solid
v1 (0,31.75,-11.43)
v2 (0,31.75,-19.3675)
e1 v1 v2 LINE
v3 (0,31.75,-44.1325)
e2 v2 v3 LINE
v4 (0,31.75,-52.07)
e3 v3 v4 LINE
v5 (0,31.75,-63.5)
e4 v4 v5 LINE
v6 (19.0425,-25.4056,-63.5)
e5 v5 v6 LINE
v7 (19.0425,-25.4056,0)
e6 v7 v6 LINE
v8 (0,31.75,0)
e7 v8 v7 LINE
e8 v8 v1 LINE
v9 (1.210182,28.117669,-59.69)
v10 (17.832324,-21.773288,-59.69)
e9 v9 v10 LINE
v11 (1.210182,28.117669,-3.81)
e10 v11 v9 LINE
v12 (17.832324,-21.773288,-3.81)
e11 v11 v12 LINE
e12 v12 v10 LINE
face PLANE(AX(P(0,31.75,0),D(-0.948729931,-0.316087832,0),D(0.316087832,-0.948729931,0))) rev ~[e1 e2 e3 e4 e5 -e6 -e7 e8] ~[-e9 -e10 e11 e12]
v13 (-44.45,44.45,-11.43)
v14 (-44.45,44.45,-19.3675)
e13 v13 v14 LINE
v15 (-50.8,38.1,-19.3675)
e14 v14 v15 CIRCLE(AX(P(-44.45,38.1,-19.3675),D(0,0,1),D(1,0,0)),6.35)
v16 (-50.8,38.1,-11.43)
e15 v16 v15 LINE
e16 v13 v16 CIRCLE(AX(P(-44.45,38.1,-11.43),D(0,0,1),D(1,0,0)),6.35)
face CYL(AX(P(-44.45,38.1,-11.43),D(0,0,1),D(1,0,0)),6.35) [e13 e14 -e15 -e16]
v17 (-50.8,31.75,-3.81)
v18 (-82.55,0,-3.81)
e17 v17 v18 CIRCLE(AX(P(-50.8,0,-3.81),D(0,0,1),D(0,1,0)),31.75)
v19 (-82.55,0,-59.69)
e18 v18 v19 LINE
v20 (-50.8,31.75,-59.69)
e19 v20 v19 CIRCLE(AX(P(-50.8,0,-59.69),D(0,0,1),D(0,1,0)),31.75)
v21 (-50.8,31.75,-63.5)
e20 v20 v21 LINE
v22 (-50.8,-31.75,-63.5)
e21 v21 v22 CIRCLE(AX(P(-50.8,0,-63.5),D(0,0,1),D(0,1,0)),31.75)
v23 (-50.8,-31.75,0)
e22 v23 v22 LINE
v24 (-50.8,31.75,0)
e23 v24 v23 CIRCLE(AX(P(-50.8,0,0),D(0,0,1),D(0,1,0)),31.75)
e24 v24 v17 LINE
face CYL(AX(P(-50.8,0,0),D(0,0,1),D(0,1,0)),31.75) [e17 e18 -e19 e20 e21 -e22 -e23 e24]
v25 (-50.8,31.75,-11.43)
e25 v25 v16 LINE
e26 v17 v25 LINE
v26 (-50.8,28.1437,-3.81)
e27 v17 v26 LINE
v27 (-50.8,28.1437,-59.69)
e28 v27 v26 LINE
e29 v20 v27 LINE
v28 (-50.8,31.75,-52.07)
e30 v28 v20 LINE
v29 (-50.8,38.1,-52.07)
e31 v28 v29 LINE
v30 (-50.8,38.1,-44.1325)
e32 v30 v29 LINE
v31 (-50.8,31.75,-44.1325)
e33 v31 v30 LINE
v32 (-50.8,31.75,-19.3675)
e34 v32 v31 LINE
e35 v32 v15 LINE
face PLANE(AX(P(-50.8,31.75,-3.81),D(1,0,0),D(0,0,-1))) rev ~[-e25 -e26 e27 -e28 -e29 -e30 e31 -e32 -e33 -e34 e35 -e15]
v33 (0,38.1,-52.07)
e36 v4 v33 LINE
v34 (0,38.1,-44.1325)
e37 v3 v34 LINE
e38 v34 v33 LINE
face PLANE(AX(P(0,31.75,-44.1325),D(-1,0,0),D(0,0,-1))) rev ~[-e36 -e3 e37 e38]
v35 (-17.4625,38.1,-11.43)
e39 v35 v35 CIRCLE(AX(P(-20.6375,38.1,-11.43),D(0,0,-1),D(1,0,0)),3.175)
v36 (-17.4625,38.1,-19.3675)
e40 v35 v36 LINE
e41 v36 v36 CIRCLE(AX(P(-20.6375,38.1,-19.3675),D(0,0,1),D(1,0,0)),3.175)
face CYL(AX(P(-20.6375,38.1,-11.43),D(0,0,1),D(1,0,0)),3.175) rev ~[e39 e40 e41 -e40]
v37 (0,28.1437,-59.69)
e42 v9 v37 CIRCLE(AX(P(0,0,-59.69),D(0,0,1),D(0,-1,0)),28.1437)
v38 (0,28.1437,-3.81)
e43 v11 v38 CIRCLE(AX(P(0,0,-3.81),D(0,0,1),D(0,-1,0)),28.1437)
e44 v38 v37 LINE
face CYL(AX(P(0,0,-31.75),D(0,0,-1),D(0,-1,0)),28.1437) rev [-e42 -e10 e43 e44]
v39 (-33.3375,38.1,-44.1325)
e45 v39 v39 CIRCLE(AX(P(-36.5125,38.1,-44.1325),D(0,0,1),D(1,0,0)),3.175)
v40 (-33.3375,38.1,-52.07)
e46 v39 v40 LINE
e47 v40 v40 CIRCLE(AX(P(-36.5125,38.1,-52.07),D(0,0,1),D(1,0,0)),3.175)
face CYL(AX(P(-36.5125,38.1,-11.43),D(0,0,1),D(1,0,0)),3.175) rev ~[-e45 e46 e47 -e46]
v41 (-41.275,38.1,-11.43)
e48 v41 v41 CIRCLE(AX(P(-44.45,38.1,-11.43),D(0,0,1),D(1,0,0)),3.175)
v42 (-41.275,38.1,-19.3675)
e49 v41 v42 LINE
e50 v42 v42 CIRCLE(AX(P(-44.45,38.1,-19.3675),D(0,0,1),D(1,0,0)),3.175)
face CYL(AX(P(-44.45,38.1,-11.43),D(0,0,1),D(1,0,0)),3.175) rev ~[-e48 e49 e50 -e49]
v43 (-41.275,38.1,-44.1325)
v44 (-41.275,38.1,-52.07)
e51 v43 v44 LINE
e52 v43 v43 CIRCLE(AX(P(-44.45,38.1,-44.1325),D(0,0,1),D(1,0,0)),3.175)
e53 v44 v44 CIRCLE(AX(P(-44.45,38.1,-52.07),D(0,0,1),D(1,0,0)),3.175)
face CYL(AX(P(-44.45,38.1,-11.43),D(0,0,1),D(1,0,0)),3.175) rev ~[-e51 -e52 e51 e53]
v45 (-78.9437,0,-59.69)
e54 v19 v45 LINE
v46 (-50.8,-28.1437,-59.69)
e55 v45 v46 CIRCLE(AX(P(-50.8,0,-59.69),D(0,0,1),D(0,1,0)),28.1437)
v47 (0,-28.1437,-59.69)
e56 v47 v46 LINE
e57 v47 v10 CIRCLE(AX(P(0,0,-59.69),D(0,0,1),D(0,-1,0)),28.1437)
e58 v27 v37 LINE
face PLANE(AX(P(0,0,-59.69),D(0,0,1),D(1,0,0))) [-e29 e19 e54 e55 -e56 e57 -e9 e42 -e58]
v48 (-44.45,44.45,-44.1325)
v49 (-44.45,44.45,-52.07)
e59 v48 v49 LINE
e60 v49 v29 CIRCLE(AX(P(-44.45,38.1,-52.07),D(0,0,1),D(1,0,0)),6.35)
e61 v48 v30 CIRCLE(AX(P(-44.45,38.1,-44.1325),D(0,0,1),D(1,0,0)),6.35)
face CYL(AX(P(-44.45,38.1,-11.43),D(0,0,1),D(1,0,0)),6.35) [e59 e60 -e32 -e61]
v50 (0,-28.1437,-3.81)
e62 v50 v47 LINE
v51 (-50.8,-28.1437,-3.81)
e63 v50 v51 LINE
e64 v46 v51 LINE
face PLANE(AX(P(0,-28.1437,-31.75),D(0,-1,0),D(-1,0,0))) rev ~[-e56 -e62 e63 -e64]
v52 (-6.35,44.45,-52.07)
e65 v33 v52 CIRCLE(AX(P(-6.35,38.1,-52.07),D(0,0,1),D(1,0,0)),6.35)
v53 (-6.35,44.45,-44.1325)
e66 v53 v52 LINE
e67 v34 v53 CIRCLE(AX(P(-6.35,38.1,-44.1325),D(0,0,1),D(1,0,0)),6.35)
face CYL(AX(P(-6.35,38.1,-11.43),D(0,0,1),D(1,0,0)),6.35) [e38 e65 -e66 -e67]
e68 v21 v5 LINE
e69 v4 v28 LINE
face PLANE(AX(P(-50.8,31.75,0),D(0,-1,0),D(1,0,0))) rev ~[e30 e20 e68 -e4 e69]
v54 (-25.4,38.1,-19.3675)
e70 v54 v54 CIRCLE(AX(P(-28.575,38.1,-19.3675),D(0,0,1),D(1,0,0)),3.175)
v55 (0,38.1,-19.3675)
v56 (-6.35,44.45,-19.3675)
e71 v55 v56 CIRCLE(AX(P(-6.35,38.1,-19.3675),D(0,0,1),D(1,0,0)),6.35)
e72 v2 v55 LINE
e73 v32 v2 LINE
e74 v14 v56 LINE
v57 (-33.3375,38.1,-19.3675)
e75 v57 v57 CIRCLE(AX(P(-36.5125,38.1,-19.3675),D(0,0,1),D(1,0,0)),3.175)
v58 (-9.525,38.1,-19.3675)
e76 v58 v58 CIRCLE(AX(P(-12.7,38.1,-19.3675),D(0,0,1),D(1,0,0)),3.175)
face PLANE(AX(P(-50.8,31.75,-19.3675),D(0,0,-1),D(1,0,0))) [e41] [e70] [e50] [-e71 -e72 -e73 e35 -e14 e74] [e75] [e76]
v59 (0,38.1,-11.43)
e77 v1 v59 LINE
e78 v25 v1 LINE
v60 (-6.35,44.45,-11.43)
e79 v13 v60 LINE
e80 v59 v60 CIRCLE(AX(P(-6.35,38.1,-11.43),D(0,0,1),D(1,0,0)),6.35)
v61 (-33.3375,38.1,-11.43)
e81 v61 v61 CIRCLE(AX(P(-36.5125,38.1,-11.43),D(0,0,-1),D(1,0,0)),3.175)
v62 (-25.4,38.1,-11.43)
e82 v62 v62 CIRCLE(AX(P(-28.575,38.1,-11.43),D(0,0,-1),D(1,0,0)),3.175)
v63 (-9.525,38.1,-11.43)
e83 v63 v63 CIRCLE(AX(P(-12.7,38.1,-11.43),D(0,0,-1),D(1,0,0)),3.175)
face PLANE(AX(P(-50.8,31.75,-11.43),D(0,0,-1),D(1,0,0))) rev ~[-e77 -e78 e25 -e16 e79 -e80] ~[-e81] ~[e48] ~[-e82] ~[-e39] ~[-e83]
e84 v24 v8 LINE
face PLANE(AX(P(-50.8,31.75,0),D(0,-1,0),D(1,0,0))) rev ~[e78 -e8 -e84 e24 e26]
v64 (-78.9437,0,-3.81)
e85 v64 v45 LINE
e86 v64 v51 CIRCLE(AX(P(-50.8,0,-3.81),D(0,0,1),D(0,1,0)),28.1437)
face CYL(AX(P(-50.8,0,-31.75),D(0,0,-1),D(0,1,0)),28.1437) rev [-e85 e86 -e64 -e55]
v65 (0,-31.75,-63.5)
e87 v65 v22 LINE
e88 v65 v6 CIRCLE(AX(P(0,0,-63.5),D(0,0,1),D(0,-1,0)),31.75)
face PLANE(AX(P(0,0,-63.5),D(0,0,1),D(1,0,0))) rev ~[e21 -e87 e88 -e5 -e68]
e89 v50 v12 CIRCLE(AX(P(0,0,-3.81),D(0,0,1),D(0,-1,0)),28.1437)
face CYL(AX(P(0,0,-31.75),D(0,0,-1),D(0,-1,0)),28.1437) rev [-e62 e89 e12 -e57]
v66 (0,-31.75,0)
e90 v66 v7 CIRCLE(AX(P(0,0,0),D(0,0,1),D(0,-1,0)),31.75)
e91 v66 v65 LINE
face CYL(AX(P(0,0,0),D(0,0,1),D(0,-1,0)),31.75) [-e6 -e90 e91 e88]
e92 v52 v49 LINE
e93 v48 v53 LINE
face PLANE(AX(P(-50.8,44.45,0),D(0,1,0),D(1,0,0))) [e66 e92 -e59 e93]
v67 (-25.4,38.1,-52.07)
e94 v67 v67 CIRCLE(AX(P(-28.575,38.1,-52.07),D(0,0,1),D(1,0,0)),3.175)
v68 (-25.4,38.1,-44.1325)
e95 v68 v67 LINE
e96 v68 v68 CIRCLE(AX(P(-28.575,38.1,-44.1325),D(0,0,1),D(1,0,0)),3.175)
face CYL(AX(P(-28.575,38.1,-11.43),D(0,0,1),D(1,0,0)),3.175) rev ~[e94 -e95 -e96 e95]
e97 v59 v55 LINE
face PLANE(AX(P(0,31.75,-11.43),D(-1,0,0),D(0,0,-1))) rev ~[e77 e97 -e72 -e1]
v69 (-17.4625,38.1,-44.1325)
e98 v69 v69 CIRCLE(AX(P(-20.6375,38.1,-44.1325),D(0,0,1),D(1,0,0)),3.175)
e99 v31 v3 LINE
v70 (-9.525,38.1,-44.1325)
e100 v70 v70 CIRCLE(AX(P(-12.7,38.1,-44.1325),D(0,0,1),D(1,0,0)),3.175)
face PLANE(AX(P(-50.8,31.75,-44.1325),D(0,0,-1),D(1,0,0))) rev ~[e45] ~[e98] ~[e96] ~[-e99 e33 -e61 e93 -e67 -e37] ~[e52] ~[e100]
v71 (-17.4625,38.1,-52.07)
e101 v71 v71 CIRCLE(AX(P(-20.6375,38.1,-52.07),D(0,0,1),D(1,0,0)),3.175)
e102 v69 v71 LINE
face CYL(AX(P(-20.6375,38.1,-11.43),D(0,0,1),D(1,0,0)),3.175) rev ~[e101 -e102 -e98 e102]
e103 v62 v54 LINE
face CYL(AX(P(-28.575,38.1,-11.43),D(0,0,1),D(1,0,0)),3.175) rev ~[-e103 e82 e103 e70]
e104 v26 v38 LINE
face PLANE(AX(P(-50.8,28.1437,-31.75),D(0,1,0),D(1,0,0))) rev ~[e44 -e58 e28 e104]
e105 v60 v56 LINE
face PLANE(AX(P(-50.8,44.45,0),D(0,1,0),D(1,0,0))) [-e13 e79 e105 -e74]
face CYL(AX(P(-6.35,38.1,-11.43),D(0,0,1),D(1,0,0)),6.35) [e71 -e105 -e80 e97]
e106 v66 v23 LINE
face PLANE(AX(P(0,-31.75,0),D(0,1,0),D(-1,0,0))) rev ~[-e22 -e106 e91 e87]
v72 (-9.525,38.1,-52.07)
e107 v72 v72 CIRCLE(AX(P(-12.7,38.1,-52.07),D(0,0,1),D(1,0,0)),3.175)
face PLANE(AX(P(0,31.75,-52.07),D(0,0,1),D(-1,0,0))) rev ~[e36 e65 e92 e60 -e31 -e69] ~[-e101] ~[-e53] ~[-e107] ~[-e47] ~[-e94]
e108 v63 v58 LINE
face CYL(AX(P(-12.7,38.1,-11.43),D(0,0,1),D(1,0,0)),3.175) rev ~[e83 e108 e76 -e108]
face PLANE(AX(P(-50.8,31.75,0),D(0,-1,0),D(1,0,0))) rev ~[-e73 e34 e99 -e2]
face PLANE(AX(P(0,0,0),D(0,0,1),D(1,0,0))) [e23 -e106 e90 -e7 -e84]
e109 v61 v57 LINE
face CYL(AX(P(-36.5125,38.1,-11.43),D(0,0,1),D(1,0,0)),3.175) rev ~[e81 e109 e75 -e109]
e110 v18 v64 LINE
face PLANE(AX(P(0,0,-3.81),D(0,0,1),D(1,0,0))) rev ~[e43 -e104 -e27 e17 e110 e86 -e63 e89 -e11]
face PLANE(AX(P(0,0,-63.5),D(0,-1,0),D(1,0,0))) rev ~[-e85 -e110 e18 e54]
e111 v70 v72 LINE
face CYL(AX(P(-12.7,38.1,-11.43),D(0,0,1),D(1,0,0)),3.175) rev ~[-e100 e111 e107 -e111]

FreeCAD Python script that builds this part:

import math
import FreeCAD as App
import Part
import Sketcher

V = App.Vector
Q = App.Units.Quantity

doc = App.newDocument("Part")
body = doc.addObject("PartDesign::Body", "Body")

# Sketch on XY plane
sketch1 = body.newObject("Sketcher::SketchObject", "Sketch")
sketch1.AttachmentSupport = (doc.getObject("XY_Plane"), [""])
sketch1.MapMode = "FlatFace"
sketch1.addGeometry([
    Part.LineSegment(V(0, 32, 0), V(-51, 32, 0)),
    Part.ArcOfCircle(Part.Circle(V(-51, 0, 0), V(0, 0, 1), 32), math.radians(90), math.radians(270)),
    Part.LineSegment(V(-51, -32, 0), V(0, -32, 0)),
    Part.ArcOfCircle(Part.Circle(V(0, 0, 0), V(0, 0, 1), 32), math.radians(-90), math.radians(90)),
], False)
sketch1.addConstraint([
    Sketcher.Constraint("Tangent", 0, 2, 1, 1),
    Sketcher.Constraint("Tangent", 1, 2, 2, 1),
    Sketcher.Constraint("Tangent", 2, 2, 3, 1),
    Sketcher.Constraint("Tangent", 3, 2, 0, 1),
    Sketcher.Constraint("Horizontal", 0),
    Sketcher.Constraint("Horizontal", 2),
    Sketcher.Constraint("Coincident", 3, 3, -1, 1),
    Sketcher.Constraint("DistanceX", 0, 2, 0, 1, Q("2 in")),
    Sketcher.Constraint("Radius", 1, Q("1.25 in")),
])
pad1 = body.newObject("PartDesign::Pad", "Pad")
pad1.Profile = sketch1
pad1.Length = Q("2.5 in")
pad1.Reversed = True

# Sketch on XY plane
sketch2 = body.newObject("Sketcher::SketchObject", "Sketch001")
sketch2.AttachmentSupport = (doc.getObject("XY_Plane"), [""])
sketch2.MapMode = "FlatFace"
sketch2.AttachmentOffset = App.Placement(V(0, 0, -1.25 * 25.4), App.Rotation())
sketch2.addGeometry([
    Part.LineSegment(V(0, 28, 0), V(-51, 28, 0)),
    Part.ArcOfCircle(Part.Circle(V(-51, 0, 0), V(0, 0, 1), 28), math.radians(90), math.radians(270)),
    Part.LineSegment(V(-51, -28, 0), V(0, -28, 0)),
    Part.ArcOfCircle(Part.Circle(V(0, 0, 0), V(0, 0, 1), 28), math.radians(-90), math.radians(90)),
], False)
sketch2.addConstraint([
    Sketcher.Constraint("Tangent", 0, 2, 1, 1),
    Sketcher.Constraint("Tangent", 1, 2, 2, 1),
    Sketcher.Constraint("Tangent", 2, 2, 3, 1),
    Sketcher.Constraint("Tangent", 3, 2, 0, 1),
    Sketcher.Constraint("Horizontal", 0),
    Sketcher.Constraint("Horizontal", 2),
    Sketcher.Constraint("Coincident", 3, 3, -1, 1),
    Sketcher.Constraint("DistanceX", 0, 2, 0, 1, Q("2 in")),
    Sketcher.Constraint("Radius", 1, 28.1437),
])
pocket1 = body.newObject("PartDesign::Pocket", "Pocket")
pocket1.Profile = sketch2
pocket1.Length = Q("2.2 in")
pocket1.Midplane = True

# Sketch on XY plane
sketch3 = body.newObject("Sketcher::SketchObject", "Sketch002")
sketch3.AttachmentSupport = (doc.getObject("XY_Plane"), [""])
sketch3.MapMode = "FlatFace"
sketch3.addGeometry([
    Part.ArcOfCircle(Part.Circle(V(0, 0, 0), V(0, 0, 1), 32), math.radians(-53), math.radians(90)),
    Part.LineSegment(V(0, 32, 0), V(19, -25, 0)),
], False)
sketch3.addConstraint([
    Sketcher.Constraint("Coincident", 0, 1, 1, 2),
    Sketcher.Constraint("Coincident", 1, 1, 0, 2),
    Sketcher.Constraint("Coincident", 0, 3, -1, 1),
    Sketcher.Constraint("PointOnObject", 1, 1, -2),
    Sketcher.Constraint("Radius", 0, Q("1.25 in")),
    Sketcher.Constraint("DistanceX", -1, 1, 0, 1, Q("0.7497 in")),
])
pocket2 = body.newObject("PartDesign::Pocket", "Pocket001")
pocket2.Profile = sketch3
pocket2.Length = Q("2.5 in")

# Sketch on XZ plane
sketch4 = body.newObject("Sketcher::SketchObject", "Sketch003")
sketch4.AttachmentSupport = (doc.getObject("XZ_Plane"), [""])
sketch4.MapMode = "FlatFace"
sketch4.AttachmentOffset = App.Placement(V(0, 0, -1.25 * 25.4), App.Rotation())
sketch4.addGeometry([
    Part.LineSegment(V(-51, -11, 0), V(0, -11, 0)),  # 0
    Part.LineSegment(V(0, -11, 0), V(0, -19, 0)),  # 1
    Part.LineSegment(V(0, -19, 0), V(-51, -19, 0)),  # 2
    Part.LineSegment(V(-51, -19, 0), V(-51, -11, 0)),  # 3
    Part.LineSegment(V(-51, -44, 0), V(0, -44, 0)),  # 4
    Part.LineSegment(V(0, -44, 0), V(0, -52, 0)),  # 5
    Part.LineSegment(V(0, -52, 0), V(-51, -52, 0)),  # 6
    Part.LineSegment(V(-51, -52, 0), V(-51, -44, 0)),  # 7
], False)
sketch4.addConstraint([
    Sketcher.Constraint("Coincident", 0, 2, 1, 1),
    Sketcher.Constraint("Coincident", 1, 2, 2, 1),
    Sketcher.Constraint("Coincident", 2, 2, 3, 1),
    Sketcher.Constraint("Coincident", 3, 2, 0, 1),
    Sketcher.Constraint("Coincident", 4, 2, 5, 1),
    Sketcher.Constraint("Coincident", 5, 2, 6, 1),
    Sketcher.Constraint("Coincident", 6, 2, 7, 1),
    Sketcher.Constraint("Coincident", 7, 2, 4, 1),
    Sketcher.Constraint("Horizontal", 0),
    Sketcher.Constraint("Vertical", 1),
    Sketcher.Constraint("Horizontal", 2),
    Sketcher.Constraint("Vertical", 3),
    Sketcher.Constraint("Horizontal", 4),
    Sketcher.Constraint("Vertical", 5),
    Sketcher.Constraint("Horizontal", 6),
    Sketcher.Constraint("Vertical", 7),
    Sketcher.Constraint("PointOnObject", 0, 2, -2),
    Sketcher.Constraint("PointOnObject", 4, 2, -2),
    Sketcher.Constraint("Vertical", 3, 2, 6, 2),
    Sketcher.Constraint("Equal", 3, 5),
    Sketcher.Constraint("DistanceY", 5, 2, 0, 2, Q("1.6 in")),
    Sketcher.Constraint("DistanceX", 0, 1, 0, 2, Q("2 in")),
    Sketcher.Constraint("DistanceY", 1, 2, 1, 1, Q("0.3125 in")),
    Sketcher.Constraint("DistanceY", 0, 2, -1, 1, Q("0.45 in")),
])
pad2 = body.newObject("PartDesign::Pad", "Pad001")
pad2.Profile = sketch4
pad2.Length = Q("0.5 in")
pad2.Reversed = True

# Sketch on XY plane
sketch5 = body.newObject("Sketcher::SketchObject", "Sketch004")
sketch5.AttachmentSupport = (doc.getObject("XY_Plane"), [""])
sketch5.MapMode = "FlatFace"
sketch5.AttachmentOffset = App.Placement(V(0, 0, -0.45 * 25.4), App.Rotation())
sketch5.addGeometry([
    Part.ArcOfCircle(Part.Circle(V(-6, 38, 0), V(0, 0, 1), 6), math.radians(0), math.radians(90)),  # 0
    Part.LineSegment(V(0, 38, 0), V(0, 44, 0)),  # 1
    Part.LineSegment(V(0, 44, 0), V(-6, 44, 0)),  # 2
    Part.LineSegment(V(-51, 44, 0), V(-51, 38, 0)),  # 3
    Part.ArcOfCircle(Part.Circle(V(-44, 38, 0), V(0, 0, 1), 6), math.radians(90), math.radians(180)),  # 4
    Part.LineSegment(V(-44, 44, 0), V(-51, 44, 0)),  # 5
], False)
sketch5.addConstraint([
    Sketcher.Constraint("Tangent", 0, 1, 1, 1),
    Sketcher.Constraint("Coincident", 1, 2, 2, 1),
    Sketcher.Constraint("Tangent", 2, 2, 0, 2),
    Sketcher.Constraint("Tangent", 3, 2, 4, 2),
    Sketcher.Constraint("Tangent", 4, 1, 5, 1),
    Sketcher.Constraint("Coincident", 5, 2, 3, 1),
    Sketcher.Constraint("Vertical", 1),
    Sketcher.Constraint("Horizontal", 2),
    Sketcher.Constraint("Vertical", 3),
    Sketcher.Constraint("Horizontal", 5),
    Sketcher.Constraint("Equal", 0, 4),
    Sketcher.Constraint("PointOnObject", 0, 1, -2),
    Sketcher.Constraint("Horizontal", 0, 3, 4, 3),
    Sketcher.Constraint("Radius", 0, Q("0.25 in")),
    Sketcher.Constraint("DistanceX", 3, 2, -1, 1, Q("2 in")),
    Sketcher.Constraint("DistanceY", -1, 1, 0, 3, Q("1.5 in")),
])
pocket3 = body.newObject("PartDesign::Pocket", "Pocket002")
pocket3.Profile = sketch5
pocket3.Length = Q("2.5 in")

# Sketch on XY plane
sketch6 = body.newObject("Sketcher::SketchObject", "Sketch005")
sketch6.AttachmentSupport = (doc.getObject("XY_Plane"), [""])
sketch6.MapMode = "FlatFace"
sketch6.AttachmentOffset = App.Placement(V(0, 0, -0.45 * 25.4), App.Rotation())
sketch6.addGeometry([
    Part.Circle(V(-44.5, 38.1, 0), V(0, 0, 1), 3.2),  # 0
    Part.Circle(V(-12.7, 38.1, 0), V(0, 0, 1), 3.2),  # 1
    Part.Circle(V(-20.6, 38.1, 0), V(0, 0, 1), 3.2),  # 2
    Part.Circle(V(-28.6, 38.1, 0), V(0, 0, 1), 3.2),  # 3
    Part.Circle(V(-36.5, 38.1, 0), V(0, 0, 1), 3.2),  # 4
], False)
sketch6.addConstraint([
    Sketcher.Constraint("Equal", 0, 1),
    Sketcher.Constraint("Equal", 1, 2),
    Sketcher.Constraint("Equal", 2, 3),
    Sketcher.Constraint("Equal", 3, 4),
    Sketcher.Constraint("Horizontal", 0, 3, 1, 3),
    Sketcher.Constraint("Horizontal", 1, 3, 2, 3),
    Sketcher.Constraint("Horizontal", 2, 3, 3, 3),
    Sketcher.Constraint("Horizontal", 3, 3, 4, 3),
    Sketcher.Constraint("Diameter", 0, Q("0.25 in")),
    Sketcher.Constraint("DistanceX", 2, 3, 1, 3, Q("0.3125 in")),
    Sketcher.Constraint("DistanceX", 3, 3, 2, 3, Q("0.3125 in")),
    Sketcher.Constraint("DistanceX", 0, 3, 4, 3, Q("0.3125 in")),
    Sketcher.Constraint("DistanceX", 4, 3, 3, 3, Q("0.3125 in")),
    Sketcher.Constraint("DistanceY", -1, 1, 0, 3, Q("1.5 in")),
    Sketcher.Constraint("DistanceX", 1, 3, -1, 1, Q("0.5 in")),
])
pocket4 = body.newObject("PartDesign::Pocket", "Pocket003")
pocket4.Profile = sketch6
pocket4.Length = Q("2.5 in")

# Sketch on XZ plane
sketch7 = body.newObject("Sketcher::SketchObject", "Sketch006")
sketch7.AttachmentSupport = (doc.getObject("XZ_Plane"), [""])
sketch7.MapMode = "FlatFace"
sketch7.AttachmentOffset = App.Placement(V(0, 0, -1.25 * 25.4), App.Rotation())
sketch7.addGeometry([
    Part.LineSegment(V(-51, -4, 0), V(-83, -4, 0)),
    Part.LineSegment(V(-83, -4, 0), V(-83, -60, 0)),
    Part.LineSegment(V(-83, -60, 0), V(-51, -60, 0)),
    Part.LineSegment(V(-51, -60, 0), V(-51, -4, 0)),
], False)
sketch7.addConstraint([
    Sketcher.Constraint("Coincident", 0, 2, 1, 1),
    Sketcher.Constraint("Coincident", 1, 2, 2, 1),
    Sketcher.Constraint("Coincident", 2, 2, 3, 1),
    Sketcher.Constraint("Coincident", 3, 2, 0, 1),
    Sketcher.Constraint("Horizontal", 0),
    Sketcher.Constraint("Vertical", 1),
    Sketcher.Constraint("Horizontal", 2),
    Sketcher.Constraint("Vertical", 3),
    Sketcher.Constraint("DistanceY", 1, 2, 1, 1, Q("2.2 in")),
    Sketcher.Constraint("DistanceX", 2, 2, -1, 1, Q("2 in")),
    Sketcher.Constraint("DistanceX", 0, 2, 0, 1, Q("1.25 in")),
    Sketcher.Constraint("DistanceY", 0, 2, -1, 1, Q("0.15 in")),
])
pocket5 = body.newObject("PartDesign::Pocket", "Pocket004")
pocket5.Profile = sketch7
pocket5.Length = Q("1.25 in")
pocket5.Reversed = True

doc.recompute()
